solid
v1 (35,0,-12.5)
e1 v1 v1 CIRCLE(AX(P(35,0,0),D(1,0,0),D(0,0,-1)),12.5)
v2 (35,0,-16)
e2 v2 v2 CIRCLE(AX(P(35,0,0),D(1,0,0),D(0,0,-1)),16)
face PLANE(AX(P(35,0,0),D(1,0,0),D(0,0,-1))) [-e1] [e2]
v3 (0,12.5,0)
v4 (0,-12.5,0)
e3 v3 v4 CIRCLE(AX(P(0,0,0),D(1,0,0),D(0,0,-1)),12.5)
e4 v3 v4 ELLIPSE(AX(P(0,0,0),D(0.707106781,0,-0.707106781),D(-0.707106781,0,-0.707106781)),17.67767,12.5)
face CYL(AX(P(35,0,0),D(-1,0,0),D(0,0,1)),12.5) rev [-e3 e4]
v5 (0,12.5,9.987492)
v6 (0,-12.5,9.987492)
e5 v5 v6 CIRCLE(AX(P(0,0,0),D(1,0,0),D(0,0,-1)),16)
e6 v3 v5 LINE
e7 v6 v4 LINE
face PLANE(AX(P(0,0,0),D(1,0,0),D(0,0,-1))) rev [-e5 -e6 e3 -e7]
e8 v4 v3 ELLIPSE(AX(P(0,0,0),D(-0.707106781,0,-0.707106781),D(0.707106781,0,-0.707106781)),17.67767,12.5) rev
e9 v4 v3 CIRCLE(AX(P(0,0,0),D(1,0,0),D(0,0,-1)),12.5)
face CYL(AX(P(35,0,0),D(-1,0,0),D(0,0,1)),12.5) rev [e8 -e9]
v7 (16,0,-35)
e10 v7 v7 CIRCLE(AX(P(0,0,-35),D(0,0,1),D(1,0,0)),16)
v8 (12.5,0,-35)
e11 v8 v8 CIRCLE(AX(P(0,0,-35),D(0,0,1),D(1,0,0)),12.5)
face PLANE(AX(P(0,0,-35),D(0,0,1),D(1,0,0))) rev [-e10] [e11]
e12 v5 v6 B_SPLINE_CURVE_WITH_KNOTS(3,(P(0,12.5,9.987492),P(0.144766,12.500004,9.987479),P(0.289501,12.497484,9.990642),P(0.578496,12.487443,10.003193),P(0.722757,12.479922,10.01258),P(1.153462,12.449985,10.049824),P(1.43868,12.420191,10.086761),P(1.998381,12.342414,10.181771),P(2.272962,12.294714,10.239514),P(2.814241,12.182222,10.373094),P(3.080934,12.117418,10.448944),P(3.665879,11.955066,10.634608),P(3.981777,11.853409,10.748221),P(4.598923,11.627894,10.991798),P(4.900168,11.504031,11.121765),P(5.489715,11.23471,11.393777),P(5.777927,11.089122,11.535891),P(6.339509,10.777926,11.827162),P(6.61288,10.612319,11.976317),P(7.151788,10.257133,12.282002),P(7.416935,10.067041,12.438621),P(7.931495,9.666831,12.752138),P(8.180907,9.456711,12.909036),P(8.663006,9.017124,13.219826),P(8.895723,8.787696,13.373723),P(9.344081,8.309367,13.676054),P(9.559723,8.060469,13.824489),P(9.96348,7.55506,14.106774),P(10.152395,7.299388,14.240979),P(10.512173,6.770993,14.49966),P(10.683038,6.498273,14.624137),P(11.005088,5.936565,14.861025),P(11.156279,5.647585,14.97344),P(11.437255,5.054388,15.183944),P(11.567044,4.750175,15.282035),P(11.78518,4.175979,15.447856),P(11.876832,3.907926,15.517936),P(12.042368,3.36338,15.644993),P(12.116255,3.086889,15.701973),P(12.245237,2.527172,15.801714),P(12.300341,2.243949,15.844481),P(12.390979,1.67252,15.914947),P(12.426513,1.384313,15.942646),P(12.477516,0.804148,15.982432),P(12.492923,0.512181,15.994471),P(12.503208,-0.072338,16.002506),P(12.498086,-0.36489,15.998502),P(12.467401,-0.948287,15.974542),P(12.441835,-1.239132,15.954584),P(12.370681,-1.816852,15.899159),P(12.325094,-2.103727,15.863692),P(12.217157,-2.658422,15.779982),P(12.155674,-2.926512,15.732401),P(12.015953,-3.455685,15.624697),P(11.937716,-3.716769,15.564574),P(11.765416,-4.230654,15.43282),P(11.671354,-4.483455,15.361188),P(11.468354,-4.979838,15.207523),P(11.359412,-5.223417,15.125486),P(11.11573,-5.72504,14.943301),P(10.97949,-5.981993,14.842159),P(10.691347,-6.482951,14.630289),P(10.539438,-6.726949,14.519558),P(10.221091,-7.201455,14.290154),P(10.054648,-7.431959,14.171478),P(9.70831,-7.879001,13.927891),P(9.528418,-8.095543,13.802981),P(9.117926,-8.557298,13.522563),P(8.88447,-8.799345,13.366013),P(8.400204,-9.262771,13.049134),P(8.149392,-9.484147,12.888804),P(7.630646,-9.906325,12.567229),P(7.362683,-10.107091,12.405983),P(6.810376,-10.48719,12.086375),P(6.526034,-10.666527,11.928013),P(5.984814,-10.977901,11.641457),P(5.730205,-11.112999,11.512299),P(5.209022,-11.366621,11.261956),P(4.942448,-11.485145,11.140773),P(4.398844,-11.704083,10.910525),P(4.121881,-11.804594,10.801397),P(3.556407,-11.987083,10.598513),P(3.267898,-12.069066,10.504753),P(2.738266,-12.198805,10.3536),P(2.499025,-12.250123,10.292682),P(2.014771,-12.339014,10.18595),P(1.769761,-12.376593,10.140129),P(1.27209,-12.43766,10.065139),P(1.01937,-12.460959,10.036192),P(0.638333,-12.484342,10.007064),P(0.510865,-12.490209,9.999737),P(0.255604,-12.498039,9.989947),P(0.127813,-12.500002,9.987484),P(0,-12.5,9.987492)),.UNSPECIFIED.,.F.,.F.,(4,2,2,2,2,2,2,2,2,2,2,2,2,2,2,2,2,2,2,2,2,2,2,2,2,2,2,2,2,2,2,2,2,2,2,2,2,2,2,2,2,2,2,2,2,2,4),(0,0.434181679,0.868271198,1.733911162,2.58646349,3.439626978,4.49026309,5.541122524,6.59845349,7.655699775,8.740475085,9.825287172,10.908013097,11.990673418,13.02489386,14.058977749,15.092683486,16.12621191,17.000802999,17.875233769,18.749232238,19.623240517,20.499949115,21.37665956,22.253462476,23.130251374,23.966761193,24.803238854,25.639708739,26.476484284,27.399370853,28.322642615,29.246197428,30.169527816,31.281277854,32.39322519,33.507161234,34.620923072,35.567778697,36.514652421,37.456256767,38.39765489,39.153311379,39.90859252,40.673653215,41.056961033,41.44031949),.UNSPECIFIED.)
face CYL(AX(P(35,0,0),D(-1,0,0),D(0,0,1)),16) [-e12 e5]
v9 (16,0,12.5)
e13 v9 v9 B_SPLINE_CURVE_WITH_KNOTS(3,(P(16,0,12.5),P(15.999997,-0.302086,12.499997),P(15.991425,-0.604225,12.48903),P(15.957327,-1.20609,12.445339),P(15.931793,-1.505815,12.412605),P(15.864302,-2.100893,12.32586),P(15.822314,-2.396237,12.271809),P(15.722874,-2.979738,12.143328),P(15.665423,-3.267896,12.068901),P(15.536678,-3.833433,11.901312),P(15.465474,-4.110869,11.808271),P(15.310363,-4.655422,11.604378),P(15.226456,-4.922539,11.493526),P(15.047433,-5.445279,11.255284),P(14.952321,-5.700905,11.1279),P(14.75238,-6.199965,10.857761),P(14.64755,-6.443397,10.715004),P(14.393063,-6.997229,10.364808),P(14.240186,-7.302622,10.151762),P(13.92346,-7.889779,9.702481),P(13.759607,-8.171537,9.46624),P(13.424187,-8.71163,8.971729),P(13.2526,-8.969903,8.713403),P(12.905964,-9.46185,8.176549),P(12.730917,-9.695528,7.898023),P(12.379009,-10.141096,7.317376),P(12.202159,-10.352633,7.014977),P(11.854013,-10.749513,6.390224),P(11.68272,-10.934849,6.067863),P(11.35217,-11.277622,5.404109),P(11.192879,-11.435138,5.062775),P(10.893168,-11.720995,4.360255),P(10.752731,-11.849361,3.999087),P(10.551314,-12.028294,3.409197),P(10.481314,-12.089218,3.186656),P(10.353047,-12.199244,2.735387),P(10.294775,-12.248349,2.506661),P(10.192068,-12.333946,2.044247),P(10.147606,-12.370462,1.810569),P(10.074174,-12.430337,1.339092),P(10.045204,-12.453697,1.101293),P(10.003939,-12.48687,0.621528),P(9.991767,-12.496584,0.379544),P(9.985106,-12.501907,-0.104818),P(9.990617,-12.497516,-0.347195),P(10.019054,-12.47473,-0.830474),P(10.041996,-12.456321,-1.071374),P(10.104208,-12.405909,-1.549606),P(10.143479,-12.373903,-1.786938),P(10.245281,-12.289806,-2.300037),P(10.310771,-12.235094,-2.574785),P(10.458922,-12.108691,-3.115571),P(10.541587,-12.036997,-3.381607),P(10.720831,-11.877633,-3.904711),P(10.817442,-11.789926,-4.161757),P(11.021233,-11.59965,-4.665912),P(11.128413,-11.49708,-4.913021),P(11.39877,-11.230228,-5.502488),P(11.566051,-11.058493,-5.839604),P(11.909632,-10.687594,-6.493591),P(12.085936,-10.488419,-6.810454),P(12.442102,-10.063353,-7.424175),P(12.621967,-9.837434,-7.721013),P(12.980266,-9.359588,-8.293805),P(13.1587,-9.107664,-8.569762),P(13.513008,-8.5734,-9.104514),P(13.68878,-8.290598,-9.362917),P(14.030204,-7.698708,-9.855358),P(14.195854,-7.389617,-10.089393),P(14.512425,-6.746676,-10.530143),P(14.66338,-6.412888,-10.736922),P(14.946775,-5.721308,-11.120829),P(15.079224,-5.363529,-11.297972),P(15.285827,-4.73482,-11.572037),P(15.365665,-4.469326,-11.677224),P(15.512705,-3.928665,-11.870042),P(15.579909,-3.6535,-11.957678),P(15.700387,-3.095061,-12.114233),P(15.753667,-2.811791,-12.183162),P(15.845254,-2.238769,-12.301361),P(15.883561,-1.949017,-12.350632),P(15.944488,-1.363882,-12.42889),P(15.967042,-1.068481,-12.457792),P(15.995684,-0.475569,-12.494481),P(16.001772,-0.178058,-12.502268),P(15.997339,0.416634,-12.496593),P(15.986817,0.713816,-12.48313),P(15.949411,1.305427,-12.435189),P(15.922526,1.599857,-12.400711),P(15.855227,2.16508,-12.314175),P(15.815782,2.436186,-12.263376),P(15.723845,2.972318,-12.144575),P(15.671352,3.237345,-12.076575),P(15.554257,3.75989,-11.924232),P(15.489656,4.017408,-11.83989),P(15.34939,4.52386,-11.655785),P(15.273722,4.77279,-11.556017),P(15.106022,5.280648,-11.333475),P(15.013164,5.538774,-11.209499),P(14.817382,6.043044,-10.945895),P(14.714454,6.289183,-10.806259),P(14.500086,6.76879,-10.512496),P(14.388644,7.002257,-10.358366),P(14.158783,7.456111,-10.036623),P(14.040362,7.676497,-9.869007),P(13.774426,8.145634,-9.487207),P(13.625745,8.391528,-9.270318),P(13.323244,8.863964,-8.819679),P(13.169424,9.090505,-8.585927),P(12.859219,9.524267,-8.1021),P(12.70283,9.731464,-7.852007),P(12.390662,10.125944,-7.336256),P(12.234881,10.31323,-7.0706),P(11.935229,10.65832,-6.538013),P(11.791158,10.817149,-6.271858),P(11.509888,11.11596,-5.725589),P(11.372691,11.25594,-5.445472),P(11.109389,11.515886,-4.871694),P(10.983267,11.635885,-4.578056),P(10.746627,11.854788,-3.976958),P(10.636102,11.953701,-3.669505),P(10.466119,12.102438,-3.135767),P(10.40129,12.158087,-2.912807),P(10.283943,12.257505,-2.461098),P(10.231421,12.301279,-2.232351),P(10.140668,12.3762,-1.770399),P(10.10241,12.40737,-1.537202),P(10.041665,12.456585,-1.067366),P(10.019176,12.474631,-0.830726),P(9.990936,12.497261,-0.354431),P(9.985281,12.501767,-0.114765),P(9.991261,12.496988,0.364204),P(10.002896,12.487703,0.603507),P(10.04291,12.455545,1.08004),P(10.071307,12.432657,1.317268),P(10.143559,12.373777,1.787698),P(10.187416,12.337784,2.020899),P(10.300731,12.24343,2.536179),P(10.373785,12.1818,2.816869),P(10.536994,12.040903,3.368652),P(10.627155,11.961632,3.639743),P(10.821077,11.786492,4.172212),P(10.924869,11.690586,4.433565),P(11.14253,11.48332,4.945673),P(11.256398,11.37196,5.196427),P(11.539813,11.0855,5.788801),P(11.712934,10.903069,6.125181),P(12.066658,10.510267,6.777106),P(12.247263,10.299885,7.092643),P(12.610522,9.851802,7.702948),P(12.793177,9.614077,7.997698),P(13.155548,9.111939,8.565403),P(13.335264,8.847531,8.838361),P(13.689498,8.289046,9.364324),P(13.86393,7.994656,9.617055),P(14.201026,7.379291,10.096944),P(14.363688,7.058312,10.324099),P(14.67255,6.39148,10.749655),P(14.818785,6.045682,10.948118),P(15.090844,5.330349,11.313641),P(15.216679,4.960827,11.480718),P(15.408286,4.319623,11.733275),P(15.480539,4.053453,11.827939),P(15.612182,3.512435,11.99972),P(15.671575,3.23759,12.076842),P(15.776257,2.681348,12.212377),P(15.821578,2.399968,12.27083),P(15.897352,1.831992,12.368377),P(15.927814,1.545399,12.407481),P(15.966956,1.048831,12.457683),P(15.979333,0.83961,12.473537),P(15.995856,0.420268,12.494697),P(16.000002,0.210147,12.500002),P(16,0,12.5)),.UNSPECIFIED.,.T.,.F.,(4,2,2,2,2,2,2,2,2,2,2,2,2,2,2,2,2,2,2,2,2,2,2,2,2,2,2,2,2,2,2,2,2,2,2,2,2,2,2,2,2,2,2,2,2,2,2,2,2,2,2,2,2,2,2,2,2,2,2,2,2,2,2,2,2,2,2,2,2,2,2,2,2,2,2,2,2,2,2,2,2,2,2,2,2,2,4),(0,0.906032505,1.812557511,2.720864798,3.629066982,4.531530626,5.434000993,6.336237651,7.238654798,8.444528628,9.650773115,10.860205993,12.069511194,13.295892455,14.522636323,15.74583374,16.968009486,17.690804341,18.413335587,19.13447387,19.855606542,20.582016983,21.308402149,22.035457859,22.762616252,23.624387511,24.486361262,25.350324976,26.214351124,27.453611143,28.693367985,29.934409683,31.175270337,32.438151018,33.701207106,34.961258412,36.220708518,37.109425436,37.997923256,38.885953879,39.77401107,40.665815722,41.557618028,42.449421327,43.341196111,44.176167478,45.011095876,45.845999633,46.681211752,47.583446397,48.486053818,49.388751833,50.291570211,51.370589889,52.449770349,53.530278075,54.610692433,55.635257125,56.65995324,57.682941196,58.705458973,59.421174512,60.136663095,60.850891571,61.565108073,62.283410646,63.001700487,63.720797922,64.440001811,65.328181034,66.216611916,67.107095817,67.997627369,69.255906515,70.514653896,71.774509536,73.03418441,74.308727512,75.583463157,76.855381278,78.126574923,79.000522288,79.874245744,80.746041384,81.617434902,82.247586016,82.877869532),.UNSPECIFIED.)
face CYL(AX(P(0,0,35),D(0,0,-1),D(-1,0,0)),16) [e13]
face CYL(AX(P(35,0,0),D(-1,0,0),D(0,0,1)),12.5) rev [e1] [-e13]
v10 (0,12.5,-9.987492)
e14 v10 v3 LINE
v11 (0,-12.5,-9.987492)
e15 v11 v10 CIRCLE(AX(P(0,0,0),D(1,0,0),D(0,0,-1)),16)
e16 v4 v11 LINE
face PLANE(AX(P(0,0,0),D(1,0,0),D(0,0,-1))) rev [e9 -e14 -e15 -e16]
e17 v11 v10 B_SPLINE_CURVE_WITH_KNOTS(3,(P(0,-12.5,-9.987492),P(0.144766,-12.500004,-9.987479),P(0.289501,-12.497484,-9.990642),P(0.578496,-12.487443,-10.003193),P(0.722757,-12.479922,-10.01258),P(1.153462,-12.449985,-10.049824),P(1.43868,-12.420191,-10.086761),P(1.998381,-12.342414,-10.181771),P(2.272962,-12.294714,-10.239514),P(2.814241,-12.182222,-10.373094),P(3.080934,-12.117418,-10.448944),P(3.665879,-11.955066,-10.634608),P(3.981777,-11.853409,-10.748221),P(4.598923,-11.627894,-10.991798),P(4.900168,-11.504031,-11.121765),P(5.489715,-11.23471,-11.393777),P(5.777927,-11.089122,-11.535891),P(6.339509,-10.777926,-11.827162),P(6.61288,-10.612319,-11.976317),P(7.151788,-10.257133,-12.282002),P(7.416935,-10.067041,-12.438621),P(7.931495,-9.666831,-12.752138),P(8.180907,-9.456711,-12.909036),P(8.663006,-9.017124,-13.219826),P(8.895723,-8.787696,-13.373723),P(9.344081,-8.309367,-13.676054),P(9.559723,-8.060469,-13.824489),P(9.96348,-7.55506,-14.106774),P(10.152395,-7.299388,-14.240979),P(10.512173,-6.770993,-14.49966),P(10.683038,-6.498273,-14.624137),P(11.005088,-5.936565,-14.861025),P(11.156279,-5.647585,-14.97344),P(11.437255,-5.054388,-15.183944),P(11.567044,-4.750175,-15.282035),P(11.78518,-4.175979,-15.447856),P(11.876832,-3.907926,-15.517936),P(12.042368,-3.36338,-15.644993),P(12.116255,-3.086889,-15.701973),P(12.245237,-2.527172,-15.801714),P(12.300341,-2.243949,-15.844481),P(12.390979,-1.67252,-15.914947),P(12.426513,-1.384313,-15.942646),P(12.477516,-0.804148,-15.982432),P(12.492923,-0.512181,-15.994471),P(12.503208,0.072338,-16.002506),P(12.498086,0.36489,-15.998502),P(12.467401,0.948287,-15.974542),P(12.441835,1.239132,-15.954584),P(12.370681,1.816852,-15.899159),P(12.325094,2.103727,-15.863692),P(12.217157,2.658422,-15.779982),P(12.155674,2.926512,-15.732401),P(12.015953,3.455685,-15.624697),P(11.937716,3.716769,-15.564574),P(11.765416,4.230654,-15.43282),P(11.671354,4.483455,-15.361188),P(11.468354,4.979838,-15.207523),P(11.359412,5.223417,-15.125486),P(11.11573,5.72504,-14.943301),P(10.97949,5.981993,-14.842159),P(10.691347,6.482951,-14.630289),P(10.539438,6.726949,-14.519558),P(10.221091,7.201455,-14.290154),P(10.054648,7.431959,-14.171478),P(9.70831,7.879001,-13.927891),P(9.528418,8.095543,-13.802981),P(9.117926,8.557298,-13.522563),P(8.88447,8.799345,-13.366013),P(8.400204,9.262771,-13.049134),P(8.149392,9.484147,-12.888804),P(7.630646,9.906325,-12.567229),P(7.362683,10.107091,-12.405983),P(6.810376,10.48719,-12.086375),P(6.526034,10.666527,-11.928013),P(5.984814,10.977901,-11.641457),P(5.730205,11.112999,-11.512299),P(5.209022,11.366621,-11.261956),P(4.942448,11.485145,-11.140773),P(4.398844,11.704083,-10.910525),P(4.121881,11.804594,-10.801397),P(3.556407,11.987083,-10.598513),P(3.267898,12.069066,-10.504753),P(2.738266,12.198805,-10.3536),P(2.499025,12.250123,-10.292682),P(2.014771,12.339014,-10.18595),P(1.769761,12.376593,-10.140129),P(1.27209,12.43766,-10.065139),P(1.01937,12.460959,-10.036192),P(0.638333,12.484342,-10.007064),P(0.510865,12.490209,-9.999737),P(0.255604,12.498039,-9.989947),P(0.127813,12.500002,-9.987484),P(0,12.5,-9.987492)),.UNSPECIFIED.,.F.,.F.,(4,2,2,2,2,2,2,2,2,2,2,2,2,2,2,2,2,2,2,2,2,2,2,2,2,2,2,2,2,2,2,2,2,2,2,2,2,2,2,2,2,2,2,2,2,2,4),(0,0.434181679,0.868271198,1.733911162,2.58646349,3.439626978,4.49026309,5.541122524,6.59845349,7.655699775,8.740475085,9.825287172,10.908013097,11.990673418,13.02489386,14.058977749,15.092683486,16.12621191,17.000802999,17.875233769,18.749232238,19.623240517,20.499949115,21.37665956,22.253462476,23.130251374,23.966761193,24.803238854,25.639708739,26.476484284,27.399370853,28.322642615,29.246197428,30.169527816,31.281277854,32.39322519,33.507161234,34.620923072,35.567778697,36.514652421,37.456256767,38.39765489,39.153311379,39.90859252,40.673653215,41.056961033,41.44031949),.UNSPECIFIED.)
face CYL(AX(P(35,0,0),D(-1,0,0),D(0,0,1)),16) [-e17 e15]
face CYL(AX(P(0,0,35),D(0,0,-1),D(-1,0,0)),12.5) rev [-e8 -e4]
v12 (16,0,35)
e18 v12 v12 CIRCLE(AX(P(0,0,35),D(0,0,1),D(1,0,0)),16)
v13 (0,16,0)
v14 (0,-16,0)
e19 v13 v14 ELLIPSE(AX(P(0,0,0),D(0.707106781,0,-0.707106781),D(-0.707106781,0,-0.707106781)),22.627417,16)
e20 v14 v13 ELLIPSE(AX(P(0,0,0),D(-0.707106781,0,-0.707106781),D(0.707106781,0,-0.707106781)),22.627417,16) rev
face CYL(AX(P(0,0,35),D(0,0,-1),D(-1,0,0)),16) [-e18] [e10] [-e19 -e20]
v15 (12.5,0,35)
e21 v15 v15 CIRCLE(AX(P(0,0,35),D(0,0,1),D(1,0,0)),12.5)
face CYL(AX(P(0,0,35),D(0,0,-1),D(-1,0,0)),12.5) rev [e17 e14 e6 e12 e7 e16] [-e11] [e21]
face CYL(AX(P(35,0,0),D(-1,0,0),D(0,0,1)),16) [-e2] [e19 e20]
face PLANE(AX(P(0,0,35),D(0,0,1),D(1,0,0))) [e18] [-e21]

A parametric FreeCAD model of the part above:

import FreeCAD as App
import Part
import Sketcher

V = App.Vector
Q = App.Units.Quantity

doc = App.newDocument("Part")
body = doc.addObject("PartDesign::Body", "Body")

# Sketch on XY plane
sketch1 = body.newObject("Sketcher::SketchObject", "Sketch")
sketch1.AttachmentSupport = (doc.getObject("XY_Plane"), [""])
sketch1.MapMode = "FlatFace"
sketch1.addGeometry([
    Part.Circle(V(0, 0, 0), V(0, 0, 1), 16),
    Part.Circle(V(0, 0, 0), V(0, 0, 1), 12),
], False)
sketch1.addConstraint([
    Sketcher.Constraint("Coincident", 0, 3, -1, 1),
    Sketcher.Constraint("Coincident", 1, 3, -1, 1),
    Sketcher.Constraint("Diameter", 0, Q("32 mm")),
    Sketcher.Constraint("Diameter", 1, Q("25 mm")),
])
pad1 = body.newObject("PartDesign::Pad", "Pad")
pad1.Profile = sketch1
pad1.Length = 70
pad1.Midplane = True

# Sketch on YZ plane
sketch2 = body.newObject("Sketcher::SketchObject", "Sketch001")
sketch2.AttachmentSupport = (doc.getObject("YZ_Plane"), [""])
sketch2.MapMode = "FlatFace"
sketch2.addGeometry([
    Part.Circle(V(0, 0, 0), V(0, 0, 1), 16),
    Part.Circle(V(0, 0, 0), V(0, 0, 1), 12),
], False)
sketch2.addConstraint([
    Sketcher.Constraint("Coincident", 0, 3, -1, 1),
    Sketcher.Constraint("Coincident", 1, 3, -1, 1),
    Sketcher.Constraint("Diameter", 0, Q("32 mm")),
    Sketcher.Constraint("Diameter", 1, Q("25 mm")),
])
pad2 = body.newObject("PartDesign::Pad", "Pad001")
pad2.Profile = sketch2
pad2.Length = 35

doc.recompute()
